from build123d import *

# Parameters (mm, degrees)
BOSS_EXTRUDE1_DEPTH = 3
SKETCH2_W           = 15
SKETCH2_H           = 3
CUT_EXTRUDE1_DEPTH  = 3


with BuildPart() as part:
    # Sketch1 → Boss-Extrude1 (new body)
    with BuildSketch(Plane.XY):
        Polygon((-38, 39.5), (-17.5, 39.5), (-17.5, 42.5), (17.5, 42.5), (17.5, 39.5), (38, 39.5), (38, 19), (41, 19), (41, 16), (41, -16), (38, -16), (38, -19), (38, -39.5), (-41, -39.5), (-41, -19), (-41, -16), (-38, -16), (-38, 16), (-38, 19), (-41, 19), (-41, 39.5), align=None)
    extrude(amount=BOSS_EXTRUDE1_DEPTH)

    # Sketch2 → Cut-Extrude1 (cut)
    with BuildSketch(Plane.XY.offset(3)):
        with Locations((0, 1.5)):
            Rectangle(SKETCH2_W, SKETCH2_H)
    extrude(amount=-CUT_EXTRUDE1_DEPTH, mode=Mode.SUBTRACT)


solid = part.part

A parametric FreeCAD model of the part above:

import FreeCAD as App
import Part
import Sketcher
from FreeCAD import Vector
Q = App.Units.Quantity

doc = App.newDocument("Part")
params = doc.addObject("Spreadsheet::Sheet", "Params")
for row, (alias, value) in enumerate([
    ("sketch1_width", "3 mm"),
    ("sketch1_width2", "79 mm"),
    ("sketch1_width3", "35 mm"),
    ("pad1_length", "3 mm"),
    ("sketch2_width", "15 mm"),
    ("sketch2_height", "3 mm"),
    ("pocket1_length", "3 mm"),
], start=1):
    params.set(f"A{row}", alias)
    params.set(f"B{row}", "=" + value)
    params.setAlias(f"B{row}", alias)

body = doc.addObject("PartDesign::Body", "Body")

# Sketch on XY plane
sketch1 = doc.addObject("Sketcher::SketchObject", "Sketch")
body.addObject(sketch1)
sketch1.AttachmentSupport = (doc.XY_Plane, [""])
sketch1.MapMode = "FlatFace"
sketch1.addGeometry(Part.LineSegment(Vector(-17.5, 39.5, 0), Vector(-41, 39.5, 0)), False)
sketch1.addGeometry(Part.LineSegment(Vector(-41, 39.5, 0), Vector(-41, 19, 0)), False)
sketch1.addGeometry(Part.LineSegment(Vector(-41, 19, 0), Vector(-38, 19, 0)), False)
sketch1.addGeometry(Part.LineSegment(Vector(-38, 19, 0), Vector(-38, -16, 0)), False)
sketch1.addGeometry(Part.LineSegment(Vector(-38, -16, 0), Vector(-41, -16, 0)), False)
sketch1.addGeometry(Part.LineSegment(Vector(-41, -16, 0), Vector(-41, -39.5, 0)), False)
sketch1.addGeometry(Part.LineSegment(Vector(-41, -39.5, 0), Vector(38, -39.5, 0)), False)
sketch1.addGeometry(Part.LineSegment(Vector(38, -39.5, 0), Vector(38, -16, 0)), False)
sketch1.addGeometry(Part.LineSegment(Vector(38, -16, 0), Vector(41, -16, 0)), False)
sketch1.addGeometry(Part.LineSegment(Vector(41, -16, 0), Vector(41, 19, 0)), False)
sketch1.addGeometry(Part.LineSegment(Vector(41, 19, 0), Vector(38, 19, 0)), False)
sketch1.addGeometry(Part.LineSegment(Vector(38, 19, 0), Vector(38, 39.5, 0)), False)
sketch1.addGeometry(Part.LineSegment(Vector(38, 39.5, 0), Vector(17.5, 39.5, 0)), False)
sketch1.addGeometry(Part.LineSegment(Vector(17.5, 39.5, 0), Vector(17.5, 42.5, 0)), False)
sketch1.addGeometry(Part.LineSegment(Vector(17.5, 42.5, 0), Vector(-17.5, 42.5, 0)), False)
sketch1.addGeometry(Part.LineSegment(Vector(-17.5, 42.5, 0), Vector(-17.5, 39.5, 0)), False)
sketch1.addConstraint(Sketcher.Constraint("Coincident", 0, 2, 1, 1))
sketch1.addConstraint(Sketcher.Constraint("Coincident", 1, 2, 2, 1))
sketch1.addConstraint(Sketcher.Constraint("Coincident", 2, 2, 3, 1))
sketch1.addConstraint(Sketcher.Constraint("Coincident", 3, 2, 4, 1))
sketch1.addConstraint(Sketcher.Constraint("Coincident", 4, 2, 5, 1))
sketch1.addConstraint(Sketcher.Constraint("Coincident", 5, 2, 6, 1))
sketch1.addConstraint(Sketcher.Constraint("Coincident", 6, 2, 7, 1))
sketch1.addConstraint(Sketcher.Constraint("Coincident", 7, 2, 8, 1))
sketch1.addConstraint(Sketcher.Constraint("Coincident", 8, 2, 9, 1))
sketch1.addConstraint(Sketcher.Constraint("Coincident", 9, 2, 10, 1))
sketch1.addConstraint(Sketcher.Constraint("Coincident", 10, 2, 11, 1))
sketch1.addConstraint(Sketcher.Constraint("Coincident", 11, 2, 12, 1))
sketch1.addConstraint(Sketcher.Constraint("Coincident", 12, 2, 13, 1))
sketch1.addConstraint(Sketcher.Constraint("Coincident", 13, 2, 14, 1))
sketch1.addConstraint(Sketcher.Constraint("Coincident", 14, 2, 15, 1))
sketch1.addConstraint(Sketcher.Constraint("Coincident", 15, 2, 0, 1))
sketch1.addConstraint(Sketcher.Constraint("Horizontal", 0))
sketch1.addConstraint(Sketcher.Constraint("Vertical", 1))
sketch1.addConstraint(Sketcher.Constraint("Horizontal", 2))
sketch1.addConstraint(Sketcher.Constraint("Vertical", 3))
sketch1.addConstraint(Sketcher.Constraint("Horizontal", 4))
sketch1.addConstraint(Sketcher.Constraint("Vertical", 5))
sketch1.addConstraint(Sketcher.Constraint("Horizontal", 6))
sketch1.addConstraint(Sketcher.Constraint("Vertical", 7))
sketch1.addConstraint(Sketcher.Constraint("Horizontal", 8))
sketch1.addConstraint(Sketcher.Constraint("Vertical", 9))
sketch1.addConstraint(Sketcher.Constraint("Horizontal", 10))
sketch1.addConstraint(Sketcher.Constraint("Vertical", 11))
sketch1.addConstraint(Sketcher.Constraint("Horizontal", 12))
sketch1.addConstraint(Sketcher.Constraint("Vertical", 13))
sketch1.addConstraint(Sketcher.Constraint("Horizontal", 14))
sketch1.addConstraint(Sketcher.Constraint("Vertical", 15))
sketch1.addConstraint(Sketcher.Constraint("Symmetric", 3, 2, 7, 2, -2))
sketch1.addConstraint(Sketcher.Constraint("Symmetric", 1, 2, 9, 2, -2))
sketch1.addConstraint(Sketcher.Constraint("Symmetric", 12, 2, 15, 2, -2))
sketch1.addConstraint(Sketcher.Constraint("Symmetric", 0, 2, 5, 2, -1))
sketch1.addConstraint(Sketcher.Constraint("Vertical", 7, 2, 10, 2))
sketch1.addConstraint(Sketcher.Constraint("Equal", 12, 1))
sketch1.addConstraint(Sketcher.Constraint("Equal", 14, 3))
sketch1.addConstraint(Sketcher.Constraint("Equal", 0, 5))
sketch1.addConstraint(Sketcher.Constraint("Equal", 10, 13))
sketch1.addConstraint(Sketcher.Constraint("DistanceX", 2, 1, 2, 2, Q("3 mm")))
sketch1.addConstraint(Sketcher.Constraint("DistanceX", 6, 1, 6, 2, Q("79 mm")))
sketch1.addConstraint(Sketcher.Constraint("DistanceX", 14, 2, 14, 1, Q("35 mm")))
sketch1.setExpression("Constraints[41]", "Params.sketch1_width")
sketch1.setExpression("Constraints[42]", "Params.sketch1_width2")
sketch1.setExpression("Constraints[43]", "Params.sketch1_width3")
pad1 = doc.addObject("PartDesign::Pad", "Pad")
body.addObject(pad1)
pad1.Profile = sketch1
pad1.setExpression("Length", "Params.pad1_length")

# Sketch on XY plane
sketch2 = doc.addObject("Sketcher::SketchObject", "Sketch001")
body.addObject(sketch2)
sketch2.AttachmentSupport = (doc.XY_Plane, [""])
sketch2.MapMode = "FlatFace"
sketch2.AttachmentOffset = App.Placement(Vector(0, 0, 3), App.Rotation())
sketch2.addGeometry(Part.LineSegment(Vector(-7.5, 3, 0), Vector(-7.5, 0, 0)), False)
sketch2.addGeometry(Part.LineSegment(Vector(-7.5, 0, 0), Vector(7.5, 0, 0)), False)
sketch2.addGeometry(Part.LineSegment(Vector(7.5, 0, 0), Vector(7.5, 3, 0)), False)
sketch2.addGeometry(Part.LineSegment(Vector(7.5, 3, 0), Vector(-7.5, 3, 0)), False)
sketch2.addConstraint(Sketcher.Constraint("Coincident", 0, 2, 1, 1))
sketch2.addConstraint(Sketcher.Constraint("Coincident", 1, 2, 2, 1))
sketch2.addConstraint(Sketcher.Constraint("Coincident", 2, 2, 3, 1))
sketch2.addConstraint(Sketcher.Constraint("Coincident", 3, 2, 0, 1))
sketch2.addConstraint(Sketcher.Constraint("Vertical", 0))
sketch2.addConstraint(Sketcher.Constraint("Horizontal", 1))
sketch2.addConstraint(Sketcher.Constraint("Vertical", 2))
sketch2.addConstraint(Sketcher.Constraint("Horizontal", 3))
sketch2.addConstraint(Sketcher.Constraint("Symmetric", 0, 2, 1, 2, -1, 1))
sketch2.addConstraint(Sketcher.Constraint("DistanceX", 1, 1, 1, 2, Q("15 mm")))
sketch2.addConstraint(Sketcher.Constraint("DistanceY", 0, 2, 0, 1, Q("3 mm")))
sketch2.setExpression("Constraints[9]", "Params.sketch2_width")
sketch2.setExpression("Constraints[10]", "Params.sketch2_height")
pocket1 = doc.addObject("PartDesign::Pocket", "Pocket")
body.addObject(pocket1)
pocket1.Profile = sketch2
pocket1.setExpression("Length", "Params.pocket1_length")

doc.recompute()
